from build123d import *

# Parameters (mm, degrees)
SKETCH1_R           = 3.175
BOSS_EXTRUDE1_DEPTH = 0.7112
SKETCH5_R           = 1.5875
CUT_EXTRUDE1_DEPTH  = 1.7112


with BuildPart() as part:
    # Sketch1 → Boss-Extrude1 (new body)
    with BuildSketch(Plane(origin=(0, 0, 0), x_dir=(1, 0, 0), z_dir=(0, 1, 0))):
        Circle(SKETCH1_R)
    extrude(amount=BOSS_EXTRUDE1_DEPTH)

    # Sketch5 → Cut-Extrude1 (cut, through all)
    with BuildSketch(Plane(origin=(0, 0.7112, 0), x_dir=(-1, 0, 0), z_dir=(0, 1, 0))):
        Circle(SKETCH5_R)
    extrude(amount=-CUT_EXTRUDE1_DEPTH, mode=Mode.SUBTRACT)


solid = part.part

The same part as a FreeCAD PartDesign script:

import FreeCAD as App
import Part
import Sketcher
from FreeCAD import Vector
Q = App.Units.Quantity

doc = App.newDocument("Part")
params = doc.addObject("Spreadsheet::Sheet", "Params")
for row, (alias, value) in enumerate([
    ("sketch1_diameter", "0.25 in"),
    ("pad1_length", "0.028 in"),
    ("sketch2_diameter", "0.125 in"),
], start=1):
    params.set(f"A{row}", alias)
    params.set(f"B{row}", "=" + value)
    params.setAlias(f"B{row}", alias)

body = doc.addObject("PartDesign::Body", "Body")

# Sketch on XZ plane
sketch1 = doc.addObject("Sketcher::SketchObject", "Sketch")
body.addObject(sketch1)
sketch1.AttachmentSupport = (doc.XZ_Plane, [""])
sketch1.MapMode = "FlatFace"
sketch1.addGeometry(Part.Circle(Vector(0, 0, 0), Vector(0, 0, 1), 3.2), False)
sketch1.addConstraint([
    Sketcher.Constraint("Coincident", 0, 3, -1, 1),
    Sketcher.Constraint("Diameter", 0, Q("0.25 in")),
])
sketch1.setExpression("Constraints[1]", "Params.sketch1_diameter")
pad1 = doc.addObject("PartDesign::Pad", "Pad")
body.addObject(pad1)
pad1.Profile = sketch1
pad1.setExpression("Length", "Params.pad1_length")
pad1.Reversed = True

# Sketch on XZ plane
sketch2 = doc.addObject("Sketcher::SketchObject", "Sketch001")
body.addObject(sketch2)
sketch2.AttachmentSupport = (doc.XZ_Plane, [""])
sketch2.MapMode = "FlatFace"
sketch2.AttachmentOffset = App.Placement(Vector(0, 0, -0.028 * 25.4), App.Rotation())
sketch2.addGeometry(Part.Circle(Vector(0, 0, 0), Vector(0, 0, 1), 1.6), False)
sketch2.addConstraint([
    Sketcher.Constraint("Coincident", 0, 3, -1, 1),
    Sketcher.Constraint("Diameter", 0, Q("0.125 in")),
])
sketch2.setExpression("Constraints[1]", "Params.sketch2_diameter")
pocket1 = doc.addObject("PartDesign::Pocket", "Pocket")
body.addObject(pocket1)
pocket1.Profile = sketch2
pocket1.Type = "ThroughAll"
pocket1.Reversed = True

doc.recompute()
